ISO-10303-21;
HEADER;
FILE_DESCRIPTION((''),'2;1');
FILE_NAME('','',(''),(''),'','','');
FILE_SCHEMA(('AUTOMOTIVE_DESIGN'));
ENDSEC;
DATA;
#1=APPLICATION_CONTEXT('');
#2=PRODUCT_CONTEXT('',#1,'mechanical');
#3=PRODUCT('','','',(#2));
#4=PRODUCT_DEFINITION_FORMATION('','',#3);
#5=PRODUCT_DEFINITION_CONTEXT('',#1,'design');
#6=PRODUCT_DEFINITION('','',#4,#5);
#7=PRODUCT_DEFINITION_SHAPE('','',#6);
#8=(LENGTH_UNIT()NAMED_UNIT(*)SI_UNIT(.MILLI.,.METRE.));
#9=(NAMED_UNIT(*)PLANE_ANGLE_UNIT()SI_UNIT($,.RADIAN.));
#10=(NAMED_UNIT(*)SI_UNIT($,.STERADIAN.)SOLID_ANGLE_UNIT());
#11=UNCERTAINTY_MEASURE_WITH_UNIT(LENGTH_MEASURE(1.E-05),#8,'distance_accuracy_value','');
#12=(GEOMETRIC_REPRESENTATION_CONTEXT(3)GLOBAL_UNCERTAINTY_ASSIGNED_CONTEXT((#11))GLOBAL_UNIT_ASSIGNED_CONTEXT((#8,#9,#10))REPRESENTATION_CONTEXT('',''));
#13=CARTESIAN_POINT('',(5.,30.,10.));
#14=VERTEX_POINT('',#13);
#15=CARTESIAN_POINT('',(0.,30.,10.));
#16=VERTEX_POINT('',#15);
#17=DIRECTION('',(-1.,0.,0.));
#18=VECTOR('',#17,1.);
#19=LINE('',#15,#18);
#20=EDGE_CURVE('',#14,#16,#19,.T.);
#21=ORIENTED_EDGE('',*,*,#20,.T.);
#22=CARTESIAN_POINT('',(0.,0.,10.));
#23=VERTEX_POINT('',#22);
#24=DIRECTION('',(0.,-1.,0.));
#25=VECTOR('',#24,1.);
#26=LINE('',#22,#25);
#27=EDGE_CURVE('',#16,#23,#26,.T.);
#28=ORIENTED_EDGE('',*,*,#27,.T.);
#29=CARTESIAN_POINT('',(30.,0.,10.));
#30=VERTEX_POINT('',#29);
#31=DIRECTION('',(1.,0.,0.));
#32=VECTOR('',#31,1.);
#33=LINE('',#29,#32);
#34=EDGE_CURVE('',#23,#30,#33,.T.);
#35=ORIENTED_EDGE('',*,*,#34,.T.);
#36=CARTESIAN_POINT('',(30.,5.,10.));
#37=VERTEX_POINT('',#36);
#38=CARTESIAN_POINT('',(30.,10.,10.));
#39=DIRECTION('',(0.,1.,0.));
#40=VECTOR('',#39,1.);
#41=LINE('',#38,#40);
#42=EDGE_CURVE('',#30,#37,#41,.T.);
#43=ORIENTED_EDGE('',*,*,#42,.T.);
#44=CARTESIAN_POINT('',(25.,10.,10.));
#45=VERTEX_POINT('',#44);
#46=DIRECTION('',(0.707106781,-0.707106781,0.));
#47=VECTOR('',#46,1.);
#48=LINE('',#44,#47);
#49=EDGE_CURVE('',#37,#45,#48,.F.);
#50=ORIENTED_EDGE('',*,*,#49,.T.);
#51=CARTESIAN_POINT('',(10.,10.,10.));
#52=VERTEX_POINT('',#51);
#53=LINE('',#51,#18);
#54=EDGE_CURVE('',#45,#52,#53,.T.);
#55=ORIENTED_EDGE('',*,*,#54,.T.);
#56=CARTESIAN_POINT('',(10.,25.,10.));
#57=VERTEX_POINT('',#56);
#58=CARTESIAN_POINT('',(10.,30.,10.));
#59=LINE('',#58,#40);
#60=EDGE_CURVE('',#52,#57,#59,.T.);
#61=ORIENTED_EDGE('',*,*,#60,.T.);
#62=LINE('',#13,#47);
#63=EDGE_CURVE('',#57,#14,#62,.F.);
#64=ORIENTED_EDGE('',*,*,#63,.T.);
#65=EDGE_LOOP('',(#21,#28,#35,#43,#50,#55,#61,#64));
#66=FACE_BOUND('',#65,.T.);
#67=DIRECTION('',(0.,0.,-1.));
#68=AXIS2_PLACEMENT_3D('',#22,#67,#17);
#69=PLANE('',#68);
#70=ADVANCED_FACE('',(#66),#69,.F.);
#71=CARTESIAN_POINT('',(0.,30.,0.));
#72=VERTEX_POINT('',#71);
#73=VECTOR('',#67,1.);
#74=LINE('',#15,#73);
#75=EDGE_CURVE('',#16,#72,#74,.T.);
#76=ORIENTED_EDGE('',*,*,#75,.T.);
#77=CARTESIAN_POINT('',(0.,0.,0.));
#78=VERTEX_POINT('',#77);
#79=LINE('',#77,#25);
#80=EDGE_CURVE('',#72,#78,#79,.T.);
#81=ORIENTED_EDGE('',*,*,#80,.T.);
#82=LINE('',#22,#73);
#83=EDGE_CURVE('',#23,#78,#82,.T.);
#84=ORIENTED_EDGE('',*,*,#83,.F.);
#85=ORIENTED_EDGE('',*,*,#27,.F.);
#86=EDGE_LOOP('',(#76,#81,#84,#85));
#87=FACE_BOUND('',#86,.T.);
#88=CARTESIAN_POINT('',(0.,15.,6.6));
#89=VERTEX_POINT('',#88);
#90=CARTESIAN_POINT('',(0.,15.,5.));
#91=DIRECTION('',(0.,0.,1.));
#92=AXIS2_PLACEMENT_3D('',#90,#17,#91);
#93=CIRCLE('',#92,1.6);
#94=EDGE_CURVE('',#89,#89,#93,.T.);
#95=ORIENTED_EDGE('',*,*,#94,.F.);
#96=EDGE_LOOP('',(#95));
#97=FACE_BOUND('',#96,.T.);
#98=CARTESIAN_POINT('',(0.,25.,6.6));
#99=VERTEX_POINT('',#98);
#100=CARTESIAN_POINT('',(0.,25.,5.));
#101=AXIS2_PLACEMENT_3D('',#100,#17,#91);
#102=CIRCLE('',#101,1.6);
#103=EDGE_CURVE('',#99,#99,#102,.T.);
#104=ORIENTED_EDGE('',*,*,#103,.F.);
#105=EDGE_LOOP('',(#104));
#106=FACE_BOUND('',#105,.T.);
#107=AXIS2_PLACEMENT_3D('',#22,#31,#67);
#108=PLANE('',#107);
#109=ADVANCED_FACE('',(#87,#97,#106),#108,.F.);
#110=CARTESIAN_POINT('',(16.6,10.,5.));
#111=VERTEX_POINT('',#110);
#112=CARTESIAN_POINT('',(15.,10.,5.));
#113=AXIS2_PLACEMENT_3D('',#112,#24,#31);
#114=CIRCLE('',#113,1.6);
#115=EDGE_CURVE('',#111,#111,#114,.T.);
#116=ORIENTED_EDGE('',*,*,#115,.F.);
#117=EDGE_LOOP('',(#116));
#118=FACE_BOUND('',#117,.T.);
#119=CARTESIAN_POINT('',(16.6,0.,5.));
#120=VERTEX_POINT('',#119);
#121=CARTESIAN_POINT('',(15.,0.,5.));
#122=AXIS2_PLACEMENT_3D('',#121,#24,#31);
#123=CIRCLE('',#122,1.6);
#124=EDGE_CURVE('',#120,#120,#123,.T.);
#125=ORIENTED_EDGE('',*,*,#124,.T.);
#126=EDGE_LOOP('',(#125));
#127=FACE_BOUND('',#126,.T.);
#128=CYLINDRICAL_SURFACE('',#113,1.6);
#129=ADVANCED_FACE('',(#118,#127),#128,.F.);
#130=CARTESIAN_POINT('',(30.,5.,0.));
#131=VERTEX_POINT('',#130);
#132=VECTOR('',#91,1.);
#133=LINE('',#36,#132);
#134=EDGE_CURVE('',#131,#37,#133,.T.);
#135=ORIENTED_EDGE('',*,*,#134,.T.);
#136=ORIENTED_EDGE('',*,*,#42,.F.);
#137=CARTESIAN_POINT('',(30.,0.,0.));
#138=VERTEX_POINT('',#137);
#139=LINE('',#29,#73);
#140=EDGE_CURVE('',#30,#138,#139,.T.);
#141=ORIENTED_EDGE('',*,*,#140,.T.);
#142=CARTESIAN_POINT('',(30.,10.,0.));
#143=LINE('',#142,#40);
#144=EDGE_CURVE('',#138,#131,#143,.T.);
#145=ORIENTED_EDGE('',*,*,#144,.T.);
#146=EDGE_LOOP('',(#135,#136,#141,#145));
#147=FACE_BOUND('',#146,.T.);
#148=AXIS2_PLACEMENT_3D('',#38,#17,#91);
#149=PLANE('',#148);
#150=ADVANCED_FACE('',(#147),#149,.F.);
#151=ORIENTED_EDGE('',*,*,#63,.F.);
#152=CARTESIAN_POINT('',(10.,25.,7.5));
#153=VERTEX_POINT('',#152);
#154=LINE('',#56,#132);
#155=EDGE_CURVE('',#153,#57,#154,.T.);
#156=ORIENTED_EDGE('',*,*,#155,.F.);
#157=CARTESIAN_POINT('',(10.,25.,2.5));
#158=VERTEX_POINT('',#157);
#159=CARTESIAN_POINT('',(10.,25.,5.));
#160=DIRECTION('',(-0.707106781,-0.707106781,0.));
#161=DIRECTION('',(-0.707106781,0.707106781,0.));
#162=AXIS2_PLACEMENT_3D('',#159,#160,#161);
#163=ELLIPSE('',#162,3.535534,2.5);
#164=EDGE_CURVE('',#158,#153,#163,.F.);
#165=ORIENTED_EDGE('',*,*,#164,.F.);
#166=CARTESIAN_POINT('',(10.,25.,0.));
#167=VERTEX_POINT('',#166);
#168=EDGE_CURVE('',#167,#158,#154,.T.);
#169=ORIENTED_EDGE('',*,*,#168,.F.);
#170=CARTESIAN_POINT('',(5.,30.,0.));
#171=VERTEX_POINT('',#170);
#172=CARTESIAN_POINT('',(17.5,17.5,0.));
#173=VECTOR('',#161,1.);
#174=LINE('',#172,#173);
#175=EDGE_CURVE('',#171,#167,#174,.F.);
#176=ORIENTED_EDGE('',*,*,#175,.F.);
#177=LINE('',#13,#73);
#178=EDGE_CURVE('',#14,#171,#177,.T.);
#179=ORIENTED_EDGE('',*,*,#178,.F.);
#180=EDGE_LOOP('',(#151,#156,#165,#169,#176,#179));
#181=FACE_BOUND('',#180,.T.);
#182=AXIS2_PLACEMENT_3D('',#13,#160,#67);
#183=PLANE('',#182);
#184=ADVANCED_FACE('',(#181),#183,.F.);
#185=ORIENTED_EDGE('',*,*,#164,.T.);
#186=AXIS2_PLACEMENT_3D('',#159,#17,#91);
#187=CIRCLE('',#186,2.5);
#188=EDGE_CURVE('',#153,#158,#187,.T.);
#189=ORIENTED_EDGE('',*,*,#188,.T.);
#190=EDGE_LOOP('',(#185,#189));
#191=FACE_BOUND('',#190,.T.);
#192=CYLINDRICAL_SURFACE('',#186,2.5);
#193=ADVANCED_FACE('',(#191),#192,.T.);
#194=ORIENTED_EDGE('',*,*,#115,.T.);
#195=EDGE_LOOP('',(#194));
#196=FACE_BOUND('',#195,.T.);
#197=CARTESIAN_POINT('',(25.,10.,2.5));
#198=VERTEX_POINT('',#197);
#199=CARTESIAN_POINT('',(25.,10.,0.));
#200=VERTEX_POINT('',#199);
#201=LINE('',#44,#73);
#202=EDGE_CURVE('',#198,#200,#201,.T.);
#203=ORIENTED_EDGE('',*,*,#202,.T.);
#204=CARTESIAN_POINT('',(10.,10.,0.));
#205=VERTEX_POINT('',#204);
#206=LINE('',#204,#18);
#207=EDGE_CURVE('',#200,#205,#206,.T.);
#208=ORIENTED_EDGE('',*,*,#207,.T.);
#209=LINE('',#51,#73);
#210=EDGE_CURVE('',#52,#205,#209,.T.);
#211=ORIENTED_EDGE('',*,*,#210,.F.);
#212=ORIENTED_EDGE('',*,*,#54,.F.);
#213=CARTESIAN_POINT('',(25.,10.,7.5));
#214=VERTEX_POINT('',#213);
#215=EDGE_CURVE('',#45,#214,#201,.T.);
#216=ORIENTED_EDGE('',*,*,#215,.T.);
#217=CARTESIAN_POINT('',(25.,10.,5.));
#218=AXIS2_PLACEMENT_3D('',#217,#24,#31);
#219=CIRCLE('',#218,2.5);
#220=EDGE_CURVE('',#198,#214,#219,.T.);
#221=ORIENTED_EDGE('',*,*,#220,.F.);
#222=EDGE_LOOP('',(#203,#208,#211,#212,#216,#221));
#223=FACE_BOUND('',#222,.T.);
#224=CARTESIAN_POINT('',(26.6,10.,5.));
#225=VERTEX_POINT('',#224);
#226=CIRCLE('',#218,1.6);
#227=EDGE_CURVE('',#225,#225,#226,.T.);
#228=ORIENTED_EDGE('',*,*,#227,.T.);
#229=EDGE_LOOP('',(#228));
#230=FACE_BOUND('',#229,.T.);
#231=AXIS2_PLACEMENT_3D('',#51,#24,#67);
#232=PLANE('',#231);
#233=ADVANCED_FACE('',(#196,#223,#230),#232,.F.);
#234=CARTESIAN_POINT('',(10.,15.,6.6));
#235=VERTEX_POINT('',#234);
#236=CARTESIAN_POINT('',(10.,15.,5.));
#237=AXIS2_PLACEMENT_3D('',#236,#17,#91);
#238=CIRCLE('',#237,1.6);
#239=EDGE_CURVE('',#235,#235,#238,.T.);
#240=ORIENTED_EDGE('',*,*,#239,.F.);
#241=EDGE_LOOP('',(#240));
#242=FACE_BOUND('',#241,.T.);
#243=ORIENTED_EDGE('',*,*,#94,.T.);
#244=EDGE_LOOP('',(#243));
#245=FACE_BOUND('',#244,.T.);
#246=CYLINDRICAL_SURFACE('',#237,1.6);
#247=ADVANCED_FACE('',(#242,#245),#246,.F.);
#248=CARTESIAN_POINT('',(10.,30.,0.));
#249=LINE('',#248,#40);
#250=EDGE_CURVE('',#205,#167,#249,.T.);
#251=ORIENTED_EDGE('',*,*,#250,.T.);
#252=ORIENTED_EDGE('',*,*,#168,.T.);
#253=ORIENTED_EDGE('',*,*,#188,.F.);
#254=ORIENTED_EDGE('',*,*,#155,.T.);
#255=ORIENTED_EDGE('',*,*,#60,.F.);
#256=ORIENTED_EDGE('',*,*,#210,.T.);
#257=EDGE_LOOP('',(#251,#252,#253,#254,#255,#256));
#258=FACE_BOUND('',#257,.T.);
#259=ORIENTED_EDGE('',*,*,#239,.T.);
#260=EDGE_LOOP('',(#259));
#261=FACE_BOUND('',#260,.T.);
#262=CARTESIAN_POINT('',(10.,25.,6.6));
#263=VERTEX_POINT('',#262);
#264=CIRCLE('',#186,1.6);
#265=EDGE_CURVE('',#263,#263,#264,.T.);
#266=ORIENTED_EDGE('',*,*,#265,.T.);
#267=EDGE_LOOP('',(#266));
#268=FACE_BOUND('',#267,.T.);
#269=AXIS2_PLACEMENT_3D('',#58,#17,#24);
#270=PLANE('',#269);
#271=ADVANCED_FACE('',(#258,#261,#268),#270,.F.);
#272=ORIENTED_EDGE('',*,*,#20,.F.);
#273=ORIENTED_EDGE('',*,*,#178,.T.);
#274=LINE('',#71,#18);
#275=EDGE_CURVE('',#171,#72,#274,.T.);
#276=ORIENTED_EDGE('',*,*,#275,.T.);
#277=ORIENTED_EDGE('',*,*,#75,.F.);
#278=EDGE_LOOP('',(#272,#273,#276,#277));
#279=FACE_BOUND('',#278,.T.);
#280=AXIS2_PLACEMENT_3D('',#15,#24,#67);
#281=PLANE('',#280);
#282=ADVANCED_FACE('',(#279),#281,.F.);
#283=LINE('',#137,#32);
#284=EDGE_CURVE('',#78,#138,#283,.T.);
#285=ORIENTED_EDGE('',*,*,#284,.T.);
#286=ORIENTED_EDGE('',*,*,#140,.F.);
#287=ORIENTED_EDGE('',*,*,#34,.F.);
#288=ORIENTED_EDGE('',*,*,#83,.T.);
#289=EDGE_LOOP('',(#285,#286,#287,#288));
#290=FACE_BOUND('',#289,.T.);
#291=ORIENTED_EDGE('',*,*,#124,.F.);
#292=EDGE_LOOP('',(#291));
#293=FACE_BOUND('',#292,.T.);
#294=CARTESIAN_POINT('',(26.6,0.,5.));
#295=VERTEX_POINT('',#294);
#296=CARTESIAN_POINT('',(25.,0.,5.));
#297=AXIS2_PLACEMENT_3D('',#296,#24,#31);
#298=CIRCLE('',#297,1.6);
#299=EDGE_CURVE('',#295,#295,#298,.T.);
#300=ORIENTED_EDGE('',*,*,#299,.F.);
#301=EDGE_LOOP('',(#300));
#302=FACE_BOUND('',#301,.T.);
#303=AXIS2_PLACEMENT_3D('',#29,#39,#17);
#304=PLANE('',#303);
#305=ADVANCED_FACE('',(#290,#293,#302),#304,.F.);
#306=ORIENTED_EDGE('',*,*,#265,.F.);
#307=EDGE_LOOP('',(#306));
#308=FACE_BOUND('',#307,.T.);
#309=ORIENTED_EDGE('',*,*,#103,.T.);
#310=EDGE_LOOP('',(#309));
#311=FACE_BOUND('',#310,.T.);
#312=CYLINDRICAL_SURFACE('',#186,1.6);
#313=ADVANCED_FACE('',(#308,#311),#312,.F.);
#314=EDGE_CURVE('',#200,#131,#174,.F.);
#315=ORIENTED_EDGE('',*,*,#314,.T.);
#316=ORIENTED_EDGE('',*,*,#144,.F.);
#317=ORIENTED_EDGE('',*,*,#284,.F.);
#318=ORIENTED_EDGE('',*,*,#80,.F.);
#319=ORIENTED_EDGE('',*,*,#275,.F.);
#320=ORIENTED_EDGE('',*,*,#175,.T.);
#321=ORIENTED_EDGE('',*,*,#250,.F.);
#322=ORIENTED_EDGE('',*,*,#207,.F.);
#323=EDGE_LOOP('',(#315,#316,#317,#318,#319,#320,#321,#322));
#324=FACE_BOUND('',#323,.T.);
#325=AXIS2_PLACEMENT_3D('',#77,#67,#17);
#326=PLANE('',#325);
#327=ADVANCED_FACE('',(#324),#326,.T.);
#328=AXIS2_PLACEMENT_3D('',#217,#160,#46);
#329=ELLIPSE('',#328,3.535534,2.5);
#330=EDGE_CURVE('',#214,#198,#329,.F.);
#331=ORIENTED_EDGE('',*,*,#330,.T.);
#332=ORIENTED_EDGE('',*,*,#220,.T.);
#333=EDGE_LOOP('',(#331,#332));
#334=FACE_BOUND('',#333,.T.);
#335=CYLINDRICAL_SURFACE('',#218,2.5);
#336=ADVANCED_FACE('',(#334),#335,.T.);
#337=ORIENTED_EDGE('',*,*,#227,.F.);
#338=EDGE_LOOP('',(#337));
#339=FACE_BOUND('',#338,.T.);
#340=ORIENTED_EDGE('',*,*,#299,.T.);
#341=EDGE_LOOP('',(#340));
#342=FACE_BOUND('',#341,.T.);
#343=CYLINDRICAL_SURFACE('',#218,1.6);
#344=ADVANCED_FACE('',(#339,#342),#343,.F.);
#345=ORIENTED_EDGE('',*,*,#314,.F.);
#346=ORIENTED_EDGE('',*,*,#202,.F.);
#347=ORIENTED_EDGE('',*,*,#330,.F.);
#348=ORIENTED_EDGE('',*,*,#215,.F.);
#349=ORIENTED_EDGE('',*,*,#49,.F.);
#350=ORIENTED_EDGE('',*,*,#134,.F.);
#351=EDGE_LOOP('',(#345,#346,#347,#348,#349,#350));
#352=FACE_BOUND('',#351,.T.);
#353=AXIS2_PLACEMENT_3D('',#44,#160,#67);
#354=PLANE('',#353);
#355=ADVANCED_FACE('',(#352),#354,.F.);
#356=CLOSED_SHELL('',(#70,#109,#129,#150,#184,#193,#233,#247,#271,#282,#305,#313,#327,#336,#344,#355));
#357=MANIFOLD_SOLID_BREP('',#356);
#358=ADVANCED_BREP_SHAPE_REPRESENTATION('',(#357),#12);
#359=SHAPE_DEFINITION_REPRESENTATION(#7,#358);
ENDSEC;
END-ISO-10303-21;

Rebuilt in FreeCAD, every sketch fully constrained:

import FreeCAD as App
import Part
import Sketcher
Q = App.Units.Quantity


def edges_at(feature, points):
    """Names of the edges that pass closest to the given points."""
    edges = feature.Shape.Edges
    near = lambda p: min(range(len(edges)), key=lambda i: edges[i].distToShape(Part.Vertex(*p))[0])
    return sorted({f"Edge{near(p) + 1}" for p in points})


def add_polygon(sketch, points):
    """Adds a closed chain of lines whose ends are joined by coincident constraints."""
    first, n = sketch.GeometryCount, len(points)
    for a, b in zip(points, points[1:] + points[:1]):
        sketch.addGeometry(Part.LineSegment(App.Vector(*a, 0), App.Vector(*b, 0)), False)
    for i in range(n):
        sketch.addConstraint(Sketcher.Constraint("Coincident", first + i, 2, first + (i + 1) % n, 1))

doc = App.newDocument("Part")
body = doc.addObject("PartDesign::Body", "Body")

# Sketch on XY plane
sketch1 = doc.addObject("Sketcher::SketchObject", "Sketch")
body.addObject(sketch1)
sketch1.AttachmentSupport = (doc.XY_Plane, [""])
sketch1.MapMode = "FlatFace"
add_polygon(sketch1, [(10, 30), (0, 30), (0, 0), (30, 0), (30, 10), (10, 10)])  # lines 0-5
sketch1.addConstraint([
    Sketcher.Constraint("Horizontal", 0),
    Sketcher.Constraint("Vertical", 1),
    Sketcher.Constraint("Horizontal", 2),
    Sketcher.Constraint("Vertical", 3),
    Sketcher.Constraint("Horizontal", 4),
    Sketcher.Constraint("Vertical", 5),
    Sketcher.Constraint("Coincident", 1, 2, -1, 1),
    Sketcher.Constraint("Equal", 2, 1),
    Sketcher.Constraint("Equal", 0, 3),
    Sketcher.Constraint("DistanceX", 0, 2, 0, 1, Q("10 mm")),
    Sketcher.Constraint("DistanceX", 2, 1, 2, 2, Q("30 mm")),
])
pad1 = doc.addObject("PartDesign::Pad", "Pad")
body.addObject(pad1)
pad1.Profile = sketch1
pad1.Length = 10
doc.recompute()

chamfer = doc.addObject("PartDesign::Chamfer", "Chamfer")
body.addObject(chamfer)
chamfer.Base = (pad1, edges_at(pad1, [(10, 30, 5), (30, 10, 5)]))
chamfer.Size = 5

# Sketch on YZ plane
sketch2 = doc.addObject("Sketcher::SketchObject", "Sketch001")
body.addObject(sketch2)
sketch2.AttachmentSupport = (doc.YZ_Plane, [""])
sketch2.MapMode = "FlatFace"
sketch2.addGeometry([
    Part.Circle(App.Vector(15, 5, 0), App.Vector(0, 0, 1), 1.6),
    Part.Circle(App.Vector(25, 5, 0), App.Vector(0, 0, 1), 1.6),
], False)
sketch2.addConstraint([
    Sketcher.Constraint("Equal", 0, 1),
    Sketcher.Constraint("Horizontal", 0, 3, 1, 3),
    Sketcher.Constraint("Diameter", 0, Q("3.2 mm")),
    Sketcher.Constraint("DistanceX", -1, 1, 0, 3, Q("15 mm")),
    Sketcher.Constraint("DistanceY", -1, 1, 0, 3, Q("5 mm")),
    Sketcher.Constraint("DistanceX", -1, 1, 1, 3, Q("25 mm")),
])
pocket1 = doc.addObject("PartDesign::Pocket", "Pocket")
body.addObject(pocket1)
pocket1.Profile = sketch2
pocket1.Length = 10
pocket1.Reversed = True

# Sketch on YZ plane
sketch3 = doc.addObject("Sketcher::SketchObject", "Sketch002")
body.addObject(sketch3)
sketch3.AttachmentSupport = (doc.YZ_Plane, [""])
sketch3.MapMode = "FlatFace"
sketch3.addGeometry([
    Part.Circle(App.Vector(25, 5, 0), App.Vector(0, 0, 1), 2.5),
    Part.Circle(App.Vector(25, 5, 0), App.Vector(0, 0, 1), 1.6),
], False)
sketch3.addConstraint([
    Sketcher.Constraint("Coincident", 1, 3, 0, 3),
    Sketcher.Constraint("Diameter", 0, Q("5 mm")),
    Sketcher.Constraint("Diameter", 1, Q("3.2 mm")),
    Sketcher.Constraint("DistanceX", -1, 1, 0, 3, Q("25 mm")),
    Sketcher.Constraint("DistanceY", -1, 1, 0, 3, Q("5 mm")),
])
pad2 = doc.addObject("PartDesign::Pad", "Pad001")
body.addObject(pad2)
pad2.Profile = sketch3
pad2.Length = 10

# Sketch on XZ plane
sketch4 = doc.addObject("Sketcher::SketchObject", "Sketch003")
body.addObject(sketch4)
sketch4.AttachmentSupport = (doc.XZ_Plane, [""])
sketch4.MapMode = "FlatFace"
sketch4.addGeometry([
    Part.Circle(App.Vector(25, 5, 0), App.Vector(0, 0, 1), 2.5),
    Part.Circle(App.Vector(25, 5, 0), App.Vector(0, 0, 1), 1.6),
], False)
sketch4.addConstraint([
    Sketcher.Constraint("Coincident", 1, 3, 0, 3),
    Sketcher.Constraint("Diameter", 0, Q("5 mm")),
    Sketcher.Constraint("Diameter", 1, Q("3.2 mm")),
    Sketcher.Constraint("DistanceX", -1, 1, 0, 3, Q("25 mm")),
    Sketcher.Constraint("DistanceY", -1, 1, 0, 3, Q("5 mm")),
])
pad3 = doc.addObject("PartDesign::Pad", "Pad002")
body.addObject(pad3)
pad3.Profile = sketch4
pad3.Length = 10
pad3.Reversed = True

# Sketch on XZ plane
sketch5 = doc.addObject("Sketcher::SketchObject", "Sketch004")
body.addObject(sketch5)
sketch5.AttachmentSupport = (doc.XZ_Plane, [""])
sketch5.MapMode = "FlatFace"
sketch5.addGeometry([
    Part.Circle(App.Vector(15, 5, 0), App.Vector(0, 0, 1), 1.6),
    Part.Circle(App.Vector(25, 5, 0), App.Vector(0, 0, 1), 1.6),
], False)
sketch5.addConstraint([
    Sketcher.Constraint("Equal", 0, 1),
    Sketcher.Constraint("Horizontal", 0, 3, 1, 3),
    Sketcher.Constraint("Diameter", 0, Q("3.2 mm")),
    Sketcher.Constraint("DistanceX", -1, 1, 0, 3, Q("15 mm")),
    Sketcher.Constraint("DistanceY", -1, 1, 0, 3, Q("5 mm")),
    Sketcher.Constraint("DistanceX", -1, 1, 1, 3, Q("25 mm")),
])
pocket2 = doc.addObject("PartDesign::Pocket", "Pocket001")
body.addObject(pocket2)
pocket2.Profile = sketch5
pocket2.Length = 10

doc.recompute()
